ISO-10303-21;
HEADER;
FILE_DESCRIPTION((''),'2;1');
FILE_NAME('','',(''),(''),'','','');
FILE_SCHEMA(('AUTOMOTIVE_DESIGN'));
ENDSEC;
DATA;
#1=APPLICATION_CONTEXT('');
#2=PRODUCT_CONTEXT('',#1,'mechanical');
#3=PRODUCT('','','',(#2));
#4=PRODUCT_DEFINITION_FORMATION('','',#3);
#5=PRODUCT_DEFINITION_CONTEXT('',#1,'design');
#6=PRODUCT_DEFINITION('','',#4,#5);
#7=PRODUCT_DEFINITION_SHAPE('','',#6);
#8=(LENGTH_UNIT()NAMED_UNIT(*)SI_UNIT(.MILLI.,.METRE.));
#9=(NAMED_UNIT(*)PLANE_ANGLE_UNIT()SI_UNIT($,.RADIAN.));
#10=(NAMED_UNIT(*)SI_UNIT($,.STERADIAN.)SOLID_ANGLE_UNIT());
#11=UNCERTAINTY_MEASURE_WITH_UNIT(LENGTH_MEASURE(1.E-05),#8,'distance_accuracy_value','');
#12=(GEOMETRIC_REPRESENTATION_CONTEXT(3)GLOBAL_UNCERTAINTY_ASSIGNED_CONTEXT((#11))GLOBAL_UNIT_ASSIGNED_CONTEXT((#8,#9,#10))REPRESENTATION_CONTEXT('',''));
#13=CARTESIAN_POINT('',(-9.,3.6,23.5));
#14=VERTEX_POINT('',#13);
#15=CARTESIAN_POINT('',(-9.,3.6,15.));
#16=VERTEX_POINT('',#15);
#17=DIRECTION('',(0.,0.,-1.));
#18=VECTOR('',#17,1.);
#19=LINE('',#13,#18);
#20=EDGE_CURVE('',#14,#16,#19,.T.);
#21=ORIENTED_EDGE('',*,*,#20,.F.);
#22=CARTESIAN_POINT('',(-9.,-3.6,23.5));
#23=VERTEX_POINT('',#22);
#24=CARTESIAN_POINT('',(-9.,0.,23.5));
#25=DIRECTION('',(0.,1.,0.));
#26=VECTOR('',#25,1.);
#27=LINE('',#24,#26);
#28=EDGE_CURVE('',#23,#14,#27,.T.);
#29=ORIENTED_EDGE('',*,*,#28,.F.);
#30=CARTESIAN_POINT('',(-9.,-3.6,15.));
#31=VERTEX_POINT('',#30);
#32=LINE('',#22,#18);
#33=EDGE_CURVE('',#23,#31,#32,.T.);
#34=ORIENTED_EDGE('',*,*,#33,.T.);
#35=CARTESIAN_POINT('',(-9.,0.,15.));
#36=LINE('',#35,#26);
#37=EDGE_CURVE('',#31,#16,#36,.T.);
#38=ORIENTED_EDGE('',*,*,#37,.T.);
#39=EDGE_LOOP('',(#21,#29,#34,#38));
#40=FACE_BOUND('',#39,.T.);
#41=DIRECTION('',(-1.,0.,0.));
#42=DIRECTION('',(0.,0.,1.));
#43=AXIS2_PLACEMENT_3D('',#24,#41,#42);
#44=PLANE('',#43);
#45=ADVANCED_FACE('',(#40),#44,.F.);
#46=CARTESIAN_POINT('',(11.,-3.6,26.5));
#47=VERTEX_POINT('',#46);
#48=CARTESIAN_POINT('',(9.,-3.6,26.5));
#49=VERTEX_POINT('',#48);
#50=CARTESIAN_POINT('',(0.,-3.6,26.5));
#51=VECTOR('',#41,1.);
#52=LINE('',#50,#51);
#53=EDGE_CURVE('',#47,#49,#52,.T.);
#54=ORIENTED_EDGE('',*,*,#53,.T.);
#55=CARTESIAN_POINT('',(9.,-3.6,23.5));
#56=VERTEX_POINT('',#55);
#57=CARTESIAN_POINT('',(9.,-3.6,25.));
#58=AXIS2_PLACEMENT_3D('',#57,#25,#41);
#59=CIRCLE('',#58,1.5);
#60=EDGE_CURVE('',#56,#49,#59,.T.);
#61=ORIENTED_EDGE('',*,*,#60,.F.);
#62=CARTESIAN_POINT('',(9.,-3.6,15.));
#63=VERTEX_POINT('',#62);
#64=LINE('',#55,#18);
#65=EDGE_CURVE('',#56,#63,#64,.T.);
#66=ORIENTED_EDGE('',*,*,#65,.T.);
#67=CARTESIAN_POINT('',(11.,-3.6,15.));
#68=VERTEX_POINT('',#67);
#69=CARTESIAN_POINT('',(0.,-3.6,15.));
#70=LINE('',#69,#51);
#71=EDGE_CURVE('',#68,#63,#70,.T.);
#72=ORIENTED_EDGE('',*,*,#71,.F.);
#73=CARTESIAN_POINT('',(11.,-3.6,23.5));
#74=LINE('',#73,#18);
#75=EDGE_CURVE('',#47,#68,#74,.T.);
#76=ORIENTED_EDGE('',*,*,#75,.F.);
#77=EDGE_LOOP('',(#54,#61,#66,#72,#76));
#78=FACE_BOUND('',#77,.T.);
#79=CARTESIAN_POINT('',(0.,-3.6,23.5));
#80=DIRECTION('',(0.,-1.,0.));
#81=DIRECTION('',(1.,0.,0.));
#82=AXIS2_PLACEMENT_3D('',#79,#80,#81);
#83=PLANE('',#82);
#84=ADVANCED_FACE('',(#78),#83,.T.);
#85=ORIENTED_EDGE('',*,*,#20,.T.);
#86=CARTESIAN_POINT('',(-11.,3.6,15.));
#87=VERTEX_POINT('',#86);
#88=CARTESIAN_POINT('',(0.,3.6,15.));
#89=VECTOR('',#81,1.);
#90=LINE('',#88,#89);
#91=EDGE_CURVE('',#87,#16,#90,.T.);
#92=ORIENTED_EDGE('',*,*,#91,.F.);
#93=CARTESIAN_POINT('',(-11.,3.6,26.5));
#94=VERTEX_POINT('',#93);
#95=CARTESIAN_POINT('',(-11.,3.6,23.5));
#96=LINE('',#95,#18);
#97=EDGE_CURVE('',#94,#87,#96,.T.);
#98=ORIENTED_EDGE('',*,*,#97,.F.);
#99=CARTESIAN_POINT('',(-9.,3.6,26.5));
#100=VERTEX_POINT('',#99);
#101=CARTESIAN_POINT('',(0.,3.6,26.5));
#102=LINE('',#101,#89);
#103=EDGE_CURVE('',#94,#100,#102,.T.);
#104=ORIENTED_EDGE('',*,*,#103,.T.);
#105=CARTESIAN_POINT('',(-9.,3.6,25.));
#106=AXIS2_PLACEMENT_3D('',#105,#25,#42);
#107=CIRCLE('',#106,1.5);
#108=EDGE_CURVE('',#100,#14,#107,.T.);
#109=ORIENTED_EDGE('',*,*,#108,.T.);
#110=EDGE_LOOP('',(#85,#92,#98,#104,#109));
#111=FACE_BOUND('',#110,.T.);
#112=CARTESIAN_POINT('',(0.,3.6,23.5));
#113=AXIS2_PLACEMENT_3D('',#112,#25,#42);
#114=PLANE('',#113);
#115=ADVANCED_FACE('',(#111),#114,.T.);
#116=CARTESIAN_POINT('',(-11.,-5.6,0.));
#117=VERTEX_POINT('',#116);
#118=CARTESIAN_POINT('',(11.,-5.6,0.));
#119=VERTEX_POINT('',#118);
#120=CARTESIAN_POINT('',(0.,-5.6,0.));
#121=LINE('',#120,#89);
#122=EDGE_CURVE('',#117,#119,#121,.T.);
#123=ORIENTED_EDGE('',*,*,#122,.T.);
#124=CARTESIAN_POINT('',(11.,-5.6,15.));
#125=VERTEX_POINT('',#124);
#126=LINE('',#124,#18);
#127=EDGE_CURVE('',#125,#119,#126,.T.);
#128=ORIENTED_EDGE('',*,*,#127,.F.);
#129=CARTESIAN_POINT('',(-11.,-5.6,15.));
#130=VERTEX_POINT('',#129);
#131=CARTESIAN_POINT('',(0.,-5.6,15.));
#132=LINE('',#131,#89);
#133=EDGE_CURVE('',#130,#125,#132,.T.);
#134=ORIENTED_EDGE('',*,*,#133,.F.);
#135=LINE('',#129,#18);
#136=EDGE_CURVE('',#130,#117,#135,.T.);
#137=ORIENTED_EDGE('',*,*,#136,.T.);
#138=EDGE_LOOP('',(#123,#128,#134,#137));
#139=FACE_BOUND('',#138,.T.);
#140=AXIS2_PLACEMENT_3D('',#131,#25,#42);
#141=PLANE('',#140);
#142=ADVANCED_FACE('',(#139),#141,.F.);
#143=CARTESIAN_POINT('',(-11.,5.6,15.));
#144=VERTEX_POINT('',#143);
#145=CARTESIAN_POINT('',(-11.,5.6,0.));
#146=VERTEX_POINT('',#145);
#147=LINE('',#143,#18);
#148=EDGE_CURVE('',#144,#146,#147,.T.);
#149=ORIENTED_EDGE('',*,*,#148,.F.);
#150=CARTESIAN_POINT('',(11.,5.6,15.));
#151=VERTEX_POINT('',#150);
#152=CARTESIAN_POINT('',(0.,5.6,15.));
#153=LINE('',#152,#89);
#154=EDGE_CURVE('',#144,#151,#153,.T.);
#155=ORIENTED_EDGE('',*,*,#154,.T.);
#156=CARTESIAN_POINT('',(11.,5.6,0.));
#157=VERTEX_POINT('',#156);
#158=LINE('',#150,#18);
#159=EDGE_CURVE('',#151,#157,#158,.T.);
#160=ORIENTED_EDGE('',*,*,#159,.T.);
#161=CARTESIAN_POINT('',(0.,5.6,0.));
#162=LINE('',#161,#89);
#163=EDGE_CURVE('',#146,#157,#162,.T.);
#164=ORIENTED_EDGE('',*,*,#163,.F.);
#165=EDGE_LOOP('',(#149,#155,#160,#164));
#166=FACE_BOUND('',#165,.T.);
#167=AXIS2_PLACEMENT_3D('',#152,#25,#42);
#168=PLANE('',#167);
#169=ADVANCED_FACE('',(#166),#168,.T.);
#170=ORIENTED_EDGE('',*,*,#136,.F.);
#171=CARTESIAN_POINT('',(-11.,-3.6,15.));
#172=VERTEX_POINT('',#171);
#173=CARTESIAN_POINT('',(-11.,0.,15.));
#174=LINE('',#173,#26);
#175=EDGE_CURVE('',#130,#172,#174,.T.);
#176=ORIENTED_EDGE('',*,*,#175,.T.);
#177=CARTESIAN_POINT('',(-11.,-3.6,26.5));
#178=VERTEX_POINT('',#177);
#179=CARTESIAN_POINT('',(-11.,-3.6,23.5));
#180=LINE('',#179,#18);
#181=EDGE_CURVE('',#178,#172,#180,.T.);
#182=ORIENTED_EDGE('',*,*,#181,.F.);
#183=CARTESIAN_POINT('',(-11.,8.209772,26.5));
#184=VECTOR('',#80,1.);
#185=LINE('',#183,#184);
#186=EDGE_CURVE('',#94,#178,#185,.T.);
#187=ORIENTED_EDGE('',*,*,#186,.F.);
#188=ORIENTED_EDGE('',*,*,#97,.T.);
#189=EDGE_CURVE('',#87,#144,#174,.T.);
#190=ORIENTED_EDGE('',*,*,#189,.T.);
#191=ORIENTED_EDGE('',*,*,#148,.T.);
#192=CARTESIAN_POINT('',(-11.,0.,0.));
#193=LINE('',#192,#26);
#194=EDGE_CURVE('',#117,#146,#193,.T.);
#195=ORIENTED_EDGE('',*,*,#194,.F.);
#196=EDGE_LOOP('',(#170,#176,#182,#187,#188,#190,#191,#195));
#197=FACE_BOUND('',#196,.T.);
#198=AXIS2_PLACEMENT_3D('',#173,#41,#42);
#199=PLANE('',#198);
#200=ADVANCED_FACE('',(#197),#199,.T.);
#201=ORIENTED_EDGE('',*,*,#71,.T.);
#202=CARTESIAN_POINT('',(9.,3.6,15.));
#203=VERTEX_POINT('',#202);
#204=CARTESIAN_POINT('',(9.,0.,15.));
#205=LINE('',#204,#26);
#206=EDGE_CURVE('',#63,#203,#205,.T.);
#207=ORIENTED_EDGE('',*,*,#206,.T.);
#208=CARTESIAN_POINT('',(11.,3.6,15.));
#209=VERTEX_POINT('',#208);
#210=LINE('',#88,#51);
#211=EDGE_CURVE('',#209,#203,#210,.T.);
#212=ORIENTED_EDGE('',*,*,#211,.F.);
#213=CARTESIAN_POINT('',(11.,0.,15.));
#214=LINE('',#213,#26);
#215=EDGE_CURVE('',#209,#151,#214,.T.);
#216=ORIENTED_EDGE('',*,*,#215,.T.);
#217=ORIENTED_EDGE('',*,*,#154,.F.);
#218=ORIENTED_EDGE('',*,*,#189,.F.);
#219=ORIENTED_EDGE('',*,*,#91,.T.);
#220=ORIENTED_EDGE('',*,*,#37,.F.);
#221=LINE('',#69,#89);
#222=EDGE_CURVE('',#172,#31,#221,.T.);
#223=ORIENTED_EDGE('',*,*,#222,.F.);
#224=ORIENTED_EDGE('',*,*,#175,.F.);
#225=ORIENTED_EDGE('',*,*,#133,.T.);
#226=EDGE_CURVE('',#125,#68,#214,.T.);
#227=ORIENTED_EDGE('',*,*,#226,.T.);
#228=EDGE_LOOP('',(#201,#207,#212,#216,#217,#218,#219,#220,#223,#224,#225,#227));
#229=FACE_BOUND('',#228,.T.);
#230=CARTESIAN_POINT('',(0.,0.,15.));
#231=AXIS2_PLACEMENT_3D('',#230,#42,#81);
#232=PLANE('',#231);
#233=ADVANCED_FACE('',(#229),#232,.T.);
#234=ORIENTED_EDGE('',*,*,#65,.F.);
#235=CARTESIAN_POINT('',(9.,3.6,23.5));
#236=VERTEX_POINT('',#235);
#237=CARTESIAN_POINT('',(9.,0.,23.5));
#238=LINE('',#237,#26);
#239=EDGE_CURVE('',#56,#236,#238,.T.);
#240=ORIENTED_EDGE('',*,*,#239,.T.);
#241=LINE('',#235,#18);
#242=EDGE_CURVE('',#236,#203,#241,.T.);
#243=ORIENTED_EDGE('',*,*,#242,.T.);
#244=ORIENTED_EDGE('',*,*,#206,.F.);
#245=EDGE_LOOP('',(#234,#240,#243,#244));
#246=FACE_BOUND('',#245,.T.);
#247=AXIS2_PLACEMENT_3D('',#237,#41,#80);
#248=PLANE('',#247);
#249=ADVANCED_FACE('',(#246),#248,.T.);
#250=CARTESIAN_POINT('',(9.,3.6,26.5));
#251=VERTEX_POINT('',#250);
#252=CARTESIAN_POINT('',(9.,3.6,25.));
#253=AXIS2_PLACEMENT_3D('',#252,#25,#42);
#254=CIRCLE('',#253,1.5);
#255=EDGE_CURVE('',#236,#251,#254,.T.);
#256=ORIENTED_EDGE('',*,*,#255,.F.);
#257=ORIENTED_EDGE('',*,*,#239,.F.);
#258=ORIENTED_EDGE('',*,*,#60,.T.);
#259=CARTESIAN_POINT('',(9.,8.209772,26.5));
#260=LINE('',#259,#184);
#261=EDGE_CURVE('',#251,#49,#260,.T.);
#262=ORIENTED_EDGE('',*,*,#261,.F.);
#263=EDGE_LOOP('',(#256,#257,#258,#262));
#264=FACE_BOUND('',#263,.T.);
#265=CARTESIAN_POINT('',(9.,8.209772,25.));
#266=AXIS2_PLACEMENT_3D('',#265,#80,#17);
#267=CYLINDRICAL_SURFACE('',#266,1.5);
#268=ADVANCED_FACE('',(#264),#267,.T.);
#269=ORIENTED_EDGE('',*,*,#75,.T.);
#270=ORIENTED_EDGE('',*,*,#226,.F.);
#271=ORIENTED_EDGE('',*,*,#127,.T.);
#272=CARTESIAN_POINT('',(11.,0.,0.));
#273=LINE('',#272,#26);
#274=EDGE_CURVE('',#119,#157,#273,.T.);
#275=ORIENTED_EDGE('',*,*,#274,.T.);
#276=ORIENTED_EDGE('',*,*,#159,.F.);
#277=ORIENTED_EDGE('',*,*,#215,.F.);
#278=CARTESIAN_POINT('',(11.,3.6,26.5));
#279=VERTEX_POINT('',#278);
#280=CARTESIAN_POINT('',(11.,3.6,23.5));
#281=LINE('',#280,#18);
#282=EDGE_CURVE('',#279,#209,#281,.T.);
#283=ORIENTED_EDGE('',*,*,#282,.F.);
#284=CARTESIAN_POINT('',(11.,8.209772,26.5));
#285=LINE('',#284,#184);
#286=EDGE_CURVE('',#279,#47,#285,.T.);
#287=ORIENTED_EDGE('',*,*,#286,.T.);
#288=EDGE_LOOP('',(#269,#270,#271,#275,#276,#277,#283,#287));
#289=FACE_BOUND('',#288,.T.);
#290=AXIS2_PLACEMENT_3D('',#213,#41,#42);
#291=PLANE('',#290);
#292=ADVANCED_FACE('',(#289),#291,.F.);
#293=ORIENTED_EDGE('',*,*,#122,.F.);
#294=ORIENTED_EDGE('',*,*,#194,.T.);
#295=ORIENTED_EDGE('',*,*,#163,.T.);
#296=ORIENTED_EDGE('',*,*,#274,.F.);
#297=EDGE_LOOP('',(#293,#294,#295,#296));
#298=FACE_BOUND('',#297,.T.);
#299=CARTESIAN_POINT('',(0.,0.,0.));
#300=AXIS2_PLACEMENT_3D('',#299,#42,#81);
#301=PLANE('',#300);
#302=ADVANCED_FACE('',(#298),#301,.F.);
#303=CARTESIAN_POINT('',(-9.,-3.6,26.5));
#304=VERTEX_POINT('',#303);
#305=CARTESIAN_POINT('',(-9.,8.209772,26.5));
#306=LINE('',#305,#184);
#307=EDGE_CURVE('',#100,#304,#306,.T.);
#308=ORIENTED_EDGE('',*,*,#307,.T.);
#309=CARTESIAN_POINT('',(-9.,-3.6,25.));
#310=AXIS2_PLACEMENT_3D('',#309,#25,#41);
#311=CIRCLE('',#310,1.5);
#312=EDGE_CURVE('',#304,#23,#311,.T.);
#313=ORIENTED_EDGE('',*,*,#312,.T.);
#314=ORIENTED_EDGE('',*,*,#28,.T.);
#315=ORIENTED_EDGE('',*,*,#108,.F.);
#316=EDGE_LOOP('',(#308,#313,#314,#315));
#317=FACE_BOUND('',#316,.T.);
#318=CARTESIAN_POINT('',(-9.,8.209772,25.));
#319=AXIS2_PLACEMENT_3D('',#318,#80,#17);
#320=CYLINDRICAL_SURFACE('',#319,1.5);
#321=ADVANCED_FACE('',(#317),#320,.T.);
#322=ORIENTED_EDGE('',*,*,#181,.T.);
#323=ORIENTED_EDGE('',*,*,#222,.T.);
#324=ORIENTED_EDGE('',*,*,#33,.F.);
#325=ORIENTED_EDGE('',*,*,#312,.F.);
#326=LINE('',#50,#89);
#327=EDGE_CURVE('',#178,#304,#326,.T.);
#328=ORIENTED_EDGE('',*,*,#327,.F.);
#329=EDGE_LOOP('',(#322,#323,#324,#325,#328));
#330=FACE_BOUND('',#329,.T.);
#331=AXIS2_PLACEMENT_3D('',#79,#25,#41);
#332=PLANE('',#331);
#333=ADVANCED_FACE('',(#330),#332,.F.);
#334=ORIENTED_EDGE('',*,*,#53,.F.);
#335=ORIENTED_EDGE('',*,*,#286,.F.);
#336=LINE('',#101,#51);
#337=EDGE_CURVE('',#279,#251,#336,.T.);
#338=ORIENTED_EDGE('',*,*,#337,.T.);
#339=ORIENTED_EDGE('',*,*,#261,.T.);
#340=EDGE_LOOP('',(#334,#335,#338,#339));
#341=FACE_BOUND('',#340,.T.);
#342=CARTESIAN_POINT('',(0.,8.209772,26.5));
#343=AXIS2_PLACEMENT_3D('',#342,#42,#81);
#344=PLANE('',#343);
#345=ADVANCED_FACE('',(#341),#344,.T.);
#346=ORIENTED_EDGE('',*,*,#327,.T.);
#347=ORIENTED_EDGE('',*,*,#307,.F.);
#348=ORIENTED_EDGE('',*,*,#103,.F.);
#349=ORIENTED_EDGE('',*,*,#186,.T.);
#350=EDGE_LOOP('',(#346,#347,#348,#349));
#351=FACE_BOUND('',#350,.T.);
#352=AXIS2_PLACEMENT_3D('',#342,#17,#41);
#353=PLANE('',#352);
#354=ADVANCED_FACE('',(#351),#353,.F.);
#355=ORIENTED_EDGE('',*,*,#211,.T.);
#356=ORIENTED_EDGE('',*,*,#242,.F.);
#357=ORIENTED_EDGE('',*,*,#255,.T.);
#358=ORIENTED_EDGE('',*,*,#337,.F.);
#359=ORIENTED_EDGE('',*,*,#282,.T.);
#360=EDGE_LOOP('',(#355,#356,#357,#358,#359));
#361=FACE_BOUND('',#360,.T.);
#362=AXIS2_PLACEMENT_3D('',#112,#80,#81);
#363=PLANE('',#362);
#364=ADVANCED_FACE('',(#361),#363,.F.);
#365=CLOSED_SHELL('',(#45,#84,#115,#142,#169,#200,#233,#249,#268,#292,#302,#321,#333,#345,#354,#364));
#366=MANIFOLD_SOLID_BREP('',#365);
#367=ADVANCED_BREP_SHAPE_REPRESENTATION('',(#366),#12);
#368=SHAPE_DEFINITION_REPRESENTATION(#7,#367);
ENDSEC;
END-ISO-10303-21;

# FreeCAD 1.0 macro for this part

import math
import FreeCAD as App
import Part
import Sketcher

V = App.Vector
Q = App.Units.Quantity


def add_polygon(sketch, points):
    """Adds a closed chain of lines whose ends are joined by coincident constraints."""
    first, n = sketch.GeometryCount, len(points)
    for a, b in zip(points, points[1:] + points[:1]):
        sketch.addGeometry(Part.LineSegment(App.Vector(*a, 0), App.Vector(*b, 0)), False)
    for i in range(n):
        sketch.addConstraint(Sketcher.Constraint("Coincident", first + i, 2, first + (i + 1) % n, 1))

doc = App.newDocument("Part")
body = doc.addObject("PartDesign::Body", "Body")

# Sketch on XY plane
sketch1 = body.newObject("Sketcher::SketchObject", "Sketch")
sketch1.AttachmentSupport = (doc.getObject("XY_Plane"), [""])
sketch1.MapMode = "FlatFace"
add_polygon(sketch1, [(11, 6), (-11, 6), (-11, -6), (11, -6)])  # lines 0-3
sketch1.addConstraint(Sketcher.Constraint("Horizontal", 0))
sketch1.addConstraint(Sketcher.Constraint("Vertical", 1))
sketch1.addConstraint(Sketcher.Constraint("Horizontal", 2))
sketch1.addConstraint(Sketcher.Constraint("Vertical", 3))
sketch1.addConstraint(Sketcher.Constraint("Symmetric", 0, 2, 2, 2, -1, 1))
sketch1.addConstraint(Sketcher.Constraint("DistanceX", 0, 2, 0, 1, Q("22 mm")))
sketch1.addConstraint(Sketcher.Constraint("DistanceY", 1, 2, 1, 1, Q("11.2 mm")))
pad1 = body.newObject("PartDesign::Pad", "Pad")
pad1.Profile = sketch1
pad1.Length = 15

# Sketch on XY plane
sketch2 = body.newObject("Sketcher::SketchObject", "Sketch001")
sketch2.AttachmentSupport = (doc.getObject("XY_Plane"), [""])
sketch2.MapMode = "FlatFace"
sketch2.AttachmentOffset = App.Placement(V(0, 0, 15), App.Rotation())
add_polygon(sketch2, [(-11, 3.6), (-11, -3.6), (-9, -3.6), (-9, 3.6)])  # lines 0-3
add_polygon(sketch2, [(9, 3.6), (9, -3.6), (11, -3.6), (11, 3.6)])  # lines 4-7
sketch2.addConstraint(Sketcher.Constraint("Vertical", 0))
sketch2.addConstraint(Sketcher.Constraint("Horizontal", 1))
sketch2.addConstraint(Sketcher.Constraint("Vertical", 2))
sketch2.addConstraint(Sketcher.Constraint("Horizontal", 3))
sketch2.addConstraint(Sketcher.Constraint("Vertical", 4))
sketch2.addConstraint(Sketcher.Constraint("Horizontal", 5))
sketch2.addConstraint(Sketcher.Constraint("Vertical", 6))
sketch2.addConstraint(Sketcher.Constraint("Horizontal", 7))
sketch2.addConstraint(Sketcher.Constraint("Symmetric", 2, 2, 4, 2, -1, 1))
sketch2.addConstraint(Sketcher.Constraint("Symmetric", 0, 2, 6, 2, -1, 1))
sketch2.addConstraint(Sketcher.Constraint("Horizontal", 1, 2, 4, 2))
sketch2.addConstraint(Sketcher.Constraint("DistanceX", 1, 1, 1, 2, Q("2 mm")))
sketch2.addConstraint(Sketcher.Constraint("DistanceY", 0, 2, 0, 1, Q("7.2 mm")))
sketch2.addConstraint(Sketcher.Constraint("DistanceX", 0, 2, -1, 1, Q("11 mm")))
pad2 = body.newObject("PartDesign::Pad", "Pad001")
pad2.Profile = sketch2
pad2.Length = 8.5

# Sketch on XZ plane
sketch3 = body.newObject("Sketcher::SketchObject", "Sketch002")
sketch3.AttachmentSupport = (doc.getObject("XZ_Plane"), [""])
sketch3.MapMode = "FlatFace"
sketch3.AttachmentOffset = App.Placement(V(0, 0, 3.6), App.Rotation())
sketch3.addGeometry(Part.LineSegment(V(-11, 23.5, 0), V(-11, 26.5, 0)), False)
sketch3.addGeometry(Part.LineSegment(V(-11, 26.5, 0), V(-9, 26.5, 0)), False)
sketch3.addGeometry(Part.ArcOfCircle(Part.Circle(V(-9, 25, 0), V(0, 0, 1), 1.5), math.radians(-90), math.radians(90)), False)
sketch3.addGeometry(Part.LineSegment(V(-9, 23.5, 0), V(-11, 23.5, 0)), False)
sketch3.addConstraint(Sketcher.Constraint("Coincident", 0, 2, 1, 1))
sketch3.addConstraint(Sketcher.Constraint("Tangent", 1, 2, 2, 2))
sketch3.addConstraint(Sketcher.Constraint("Tangent", 2, 1, 3, 1))
sketch3.addConstraint(Sketcher.Constraint("Coincident", 3, 2, 0, 1))
sketch3.addConstraint(Sketcher.Constraint("Vertical", 0))
sketch3.addConstraint(Sketcher.Constraint("Horizontal", 1))
sketch3.addConstraint(Sketcher.Constraint("Horizontal", 3))
sketch3.addConstraint(Sketcher.Constraint("Radius", 2, Q("1.5 mm")))
sketch3.addConstraint(Sketcher.Constraint("DistanceX", 1, 1, 1, 2, Q("2 mm")))
sketch3.addConstraint(Sketcher.Constraint("DistanceX", 2, 3, -1, 1, Q("9 mm")))
sketch3.addConstraint(Sketcher.Constraint("DistanceY", -1, 1, 2, 3, Q("25 mm")))
pad3 = body.newObject("PartDesign::Pad", "Pad002")
pad3.Profile = sketch3
pad3.Length = 7.2
pad3.Reversed = True
doc.recompute()

mirrored = body.newObject("PartDesign::Mirrored", "Mirrored")
mirrored.Originals = [pad3]
mirrored.MirrorPlane = (doc.getObject("YZ_Plane"), [""])
body.Tip = mirrored

doc.recompute()
